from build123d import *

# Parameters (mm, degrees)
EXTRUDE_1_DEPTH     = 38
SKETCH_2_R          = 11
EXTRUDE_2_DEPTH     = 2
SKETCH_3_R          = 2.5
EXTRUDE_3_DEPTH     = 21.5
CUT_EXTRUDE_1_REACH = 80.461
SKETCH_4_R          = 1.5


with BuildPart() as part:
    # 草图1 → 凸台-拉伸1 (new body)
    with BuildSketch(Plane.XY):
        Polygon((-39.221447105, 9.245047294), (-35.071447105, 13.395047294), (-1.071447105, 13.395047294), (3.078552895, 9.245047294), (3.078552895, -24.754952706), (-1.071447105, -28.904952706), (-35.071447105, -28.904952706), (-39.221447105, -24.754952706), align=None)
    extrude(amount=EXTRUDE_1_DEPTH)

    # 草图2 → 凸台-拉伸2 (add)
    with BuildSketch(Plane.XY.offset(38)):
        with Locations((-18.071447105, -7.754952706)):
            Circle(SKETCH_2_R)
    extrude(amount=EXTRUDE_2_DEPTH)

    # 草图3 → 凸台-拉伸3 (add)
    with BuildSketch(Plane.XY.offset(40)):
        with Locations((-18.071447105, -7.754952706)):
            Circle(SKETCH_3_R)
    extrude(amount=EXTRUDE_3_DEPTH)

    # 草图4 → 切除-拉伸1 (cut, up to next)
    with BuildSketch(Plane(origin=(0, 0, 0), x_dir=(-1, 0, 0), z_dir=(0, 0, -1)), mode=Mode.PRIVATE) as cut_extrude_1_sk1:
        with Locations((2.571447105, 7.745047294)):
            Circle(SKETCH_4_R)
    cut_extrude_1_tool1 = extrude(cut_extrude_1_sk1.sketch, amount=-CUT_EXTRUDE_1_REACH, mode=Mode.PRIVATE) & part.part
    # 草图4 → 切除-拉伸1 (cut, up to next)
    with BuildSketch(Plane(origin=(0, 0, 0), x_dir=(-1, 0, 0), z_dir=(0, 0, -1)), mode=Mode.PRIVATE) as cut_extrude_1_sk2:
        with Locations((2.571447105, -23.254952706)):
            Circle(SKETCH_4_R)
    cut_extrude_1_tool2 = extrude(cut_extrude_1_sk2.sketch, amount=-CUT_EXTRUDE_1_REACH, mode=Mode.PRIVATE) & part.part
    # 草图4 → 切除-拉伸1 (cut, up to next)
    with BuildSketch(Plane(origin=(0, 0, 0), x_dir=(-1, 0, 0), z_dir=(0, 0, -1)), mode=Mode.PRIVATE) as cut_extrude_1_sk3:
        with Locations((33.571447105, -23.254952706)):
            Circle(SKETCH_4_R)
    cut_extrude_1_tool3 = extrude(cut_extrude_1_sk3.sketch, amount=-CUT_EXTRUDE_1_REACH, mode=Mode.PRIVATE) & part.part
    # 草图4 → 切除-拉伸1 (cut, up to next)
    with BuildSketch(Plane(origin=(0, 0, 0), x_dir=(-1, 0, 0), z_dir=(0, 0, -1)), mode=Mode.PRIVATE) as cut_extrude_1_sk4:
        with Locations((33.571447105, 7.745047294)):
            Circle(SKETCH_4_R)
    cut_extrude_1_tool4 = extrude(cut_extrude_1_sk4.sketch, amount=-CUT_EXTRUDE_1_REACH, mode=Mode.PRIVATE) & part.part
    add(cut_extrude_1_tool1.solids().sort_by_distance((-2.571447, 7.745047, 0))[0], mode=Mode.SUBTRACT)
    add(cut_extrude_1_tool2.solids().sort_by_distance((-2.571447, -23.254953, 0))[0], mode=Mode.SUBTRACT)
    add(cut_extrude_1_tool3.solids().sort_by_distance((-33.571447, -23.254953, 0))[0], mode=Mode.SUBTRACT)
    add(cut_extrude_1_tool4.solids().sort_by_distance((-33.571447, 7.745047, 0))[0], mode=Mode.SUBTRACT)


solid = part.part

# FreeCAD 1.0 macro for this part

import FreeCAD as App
import Part
import Sketcher
Q = App.Units.Quantity


def add_polygon(sketch, points):
    """Adds a closed chain of lines whose ends are joined by coincident constraints."""
    first, n = sketch.GeometryCount, len(points)
    for a, b in zip(points, points[1:] + points[:1]):
        sketch.addGeometry(Part.LineSegment(App.Vector(*a, 0), App.Vector(*b, 0)), False)
    for i in range(n):
        sketch.addConstraint(Sketcher.Constraint("Coincident", first + i, 2, first + (i + 1) % n, 1))

doc = App.newDocument("Part")
params = doc.addObject("Spreadsheet::Sheet", "Params")
for row, (alias, value) in enumerate([
    ("sketch1_width", "34 mm"),
    ("pad1_length", "38 mm"),
    ("sketch2_diameter", "22 mm"),
    ("pad2_length", "2 mm"),
    ("sketch3_diameter", "5 mm"),
    ("pad3_length", "21.5 mm"),
    ("sketch4_diameter", "3 mm"),
    ("sketch5_diameter", "3 mm"),
    ("sketch6_diameter", "3 mm"),
    ("sketch7_diameter", "3 mm"),
], start=1):
    params.set(f"A{row}", alias)
    params.set(f"B{row}", "=" + value)
    params.setAlias(f"B{row}", alias)

body = doc.addObject("PartDesign::Body", "Body")

# Sketch on XY plane
sketch1 = doc.addObject("Sketcher::SketchObject", "Sketch")
body.addObject(sketch1)
sketch1.AttachmentSupport = (doc.XY_Plane, [""])
sketch1.MapMode = "FlatFace"
add_polygon(sketch1, [(-35, 13), (-39, 9), (-39, -25), (-35, -29), (-1, -29), (3, -25), (3, 9), (-1, 13)])  # lines 0-7
sketch1.addConstraint(Sketcher.Constraint("Vertical", 1))
sketch1.addConstraint(Sketcher.Constraint("Horizontal", 3))
sketch1.addConstraint(Sketcher.Constraint("Vertical", 5))
sketch1.addConstraint(Sketcher.Constraint("Horizontal", 7))
sketch1.addConstraint(Sketcher.Constraint("Perpendicular", 0, 2))
sketch1.addConstraint(Sketcher.Constraint("Perpendicular", 2, 4))
sketch1.addConstraint(Sketcher.Constraint("Perpendicular", 4, 6))
sketch1.addConstraint(Sketcher.Constraint("Horizontal", 1, 2, 4, 2))
sketch1.addConstraint(Sketcher.Constraint("Horizontal", 0, 2, 5, 2))
sketch1.addConstraint(Sketcher.Constraint("Vertical", 3, 2, 6, 2))
sketch1.addConstraint(Sketcher.Constraint("Vertical", 2, 2, 7, 2))
sketch1.addConstraint(Sketcher.Constraint("Equal", 7, 1))
sketch1.addConstraint(Sketcher.Constraint("DistanceX", 3, 1, 3, 2, Q("34 mm")))
sketch1.addConstraint(Sketcher.Constraint("DistanceX", 1, 2, 4, 2, Q("42.3 mm")))
sketch1.addConstraint(Sketcher.Constraint("DistanceX", 0, 2, -1, 1, Q("39.221447 mm")))
sketch1.addConstraint(Sketcher.Constraint("DistanceY", -1, 1, 0, 2, Q("9.245047 mm")))
sketch1.setExpression("Constraints[20]", "Params.sketch1_width")
pad1 = doc.addObject("PartDesign::Pad", "Pad")
body.addObject(pad1)
pad1.Profile = sketch1
pad1.setExpression("Length", "Params.pad1_length")

# Sketch on XY plane
sketch2 = doc.addObject("Sketcher::SketchObject", "Sketch001")
body.addObject(sketch2)
sketch2.AttachmentSupport = (doc.XY_Plane, [""])
sketch2.MapMode = "FlatFace"
sketch2.AttachmentOffset = App.Placement(App.Vector(0, 0, 38), App.Rotation())
sketch2.addGeometry(Part.Circle(App.Vector(-18, -8, 0), App.Vector(0, 0, 1), 11), False)
sketch2.addConstraint(Sketcher.Constraint("Diameter", 0, Q("22 mm")))
sketch2.addConstraint(Sketcher.Constraint("DistanceX", 0, 3, -1, 1, Q("18.071447 mm")))
sketch2.addConstraint(Sketcher.Constraint("DistanceY", 0, 3, -1, 1, Q("7.754953 mm")))
sketch2.setExpression("Constraints[0]", "Params.sketch2_diameter")
pad2 = doc.addObject("PartDesign::Pad", "Pad001")
body.addObject(pad2)
pad2.Profile = sketch2
pad2.setExpression("Length", "Params.pad2_length")

# Sketch on XY plane
sketch3 = doc.addObject("Sketcher::SketchObject", "Sketch002")
body.addObject(sketch3)
sketch3.AttachmentSupport = (doc.XY_Plane, [""])
sketch3.MapMode = "FlatFace"
sketch3.AttachmentOffset = App.Placement(App.Vector(0, 0, 40), App.Rotation())
sketch3.addGeometry(Part.Circle(App.Vector(-18.1, -7.8, 0), App.Vector(0, 0, 1), 2.5), False)
sketch3.addConstraint(Sketcher.Constraint("Diameter", 0, Q("5 mm")))
sketch3.addConstraint(Sketcher.Constraint("DistanceX", 0, 3, -1, 1, Q("18.071447 mm")))
sketch3.addConstraint(Sketcher.Constraint("DistanceY", 0, 3, -1, 1, Q("7.754953 mm")))
sketch3.setExpression("Constraints[0]", "Params.sketch3_diameter")
pad3 = doc.addObject("PartDesign::Pad", "Pad002")
body.addObject(pad3)
pad3.Profile = sketch3
pad3.setExpression("Length", "Params.pad3_length")

# Sketch on XY plane
sketch4 = doc.addObject("Sketcher::SketchObject", "Sketch003")
body.addObject(sketch4)
sketch4.AttachmentSupport = (doc.XY_Plane, [""])
sketch4.MapMode = "FlatFace"
sketch4.addGeometry(Part.Circle(App.Vector(-2.6, 7.7, 0), App.Vector(0, 0, 1), 1.5), False)
sketch4.addConstraint(Sketcher.Constraint("Diameter", 0, Q("3 mm")))
sketch4.addConstraint(Sketcher.Constraint("DistanceX", 0, 3, -1, 1, Q("2.571447 mm")))
sketch4.addConstraint(Sketcher.Constraint("DistanceY", -1, 1, 0, 3, Q("7.745047 mm")))
sketch4.setExpression("Constraints[0]", "Params.sketch4_diameter")
pocket1 = doc.addObject("PartDesign::Pocket", "Pocket")
body.addObject(pocket1)
pocket1.Profile = sketch4
pocket1.Type = "UpToFirst"
pocket1.Reversed = True

# Sketch on XY plane
sketch5 = doc.addObject("Sketcher::SketchObject", "Sketch004")
body.addObject(sketch5)
sketch5.AttachmentSupport = (doc.XY_Plane, [""])
sketch5.MapMode = "FlatFace"
sketch5.addGeometry(Part.Circle(App.Vector(-2.6, -23.3, 0), App.Vector(0, 0, 1), 1.5), False)
sketch5.addConstraint(Sketcher.Constraint("Diameter", 0, Q("3 mm")))
sketch5.addConstraint(Sketcher.Constraint("DistanceX", 0, 3, -1, 1, Q("2.571447 mm")))
sketch5.addConstraint(Sketcher.Constraint("DistanceY", 0, 3, -1, 1, Q("23.254953 mm")))
sketch5.setExpression("Constraints[0]", "Params.sketch5_diameter")
pocket2 = doc.addObject("PartDesign::Pocket", "Pocket001")
body.addObject(pocket2)
pocket2.Profile = sketch5
pocket2.Type = "UpToFirst"
pocket2.Reversed = True

# Sketch on XY plane
sketch6 = doc.addObject("Sketcher::SketchObject", "Sketch005")
body.addObject(sketch6)
sketch6.AttachmentSupport = (doc.XY_Plane, [""])
sketch6.MapMode = "FlatFace"
sketch6.addGeometry(Part.Circle(App.Vector(-33.6, -23.3, 0), App.Vector(0, 0, 1), 1.5), False)
sketch6.addConstraint(Sketcher.Constraint("Diameter", 0, Q("3 mm")))
sketch6.addConstraint(Sketcher.Constraint("DistanceX", 0, 3, -1, 1, Q("33.571447 mm")))
sketch6.addConstraint(Sketcher.Constraint("DistanceY", 0, 3, -1, 1, Q("23.254953 mm")))
sketch6.setExpression("Constraints[0]", "Params.sketch6_diameter")
pocket3 = doc.addObject("PartDesign::Pocket", "Pocket002")
body.addObject(pocket3)
pocket3.Profile = sketch6
pocket3.Type = "UpToFirst"
pocket3.Reversed = True

# Sketch on XY plane
sketch7 = doc.addObject("Sketcher::SketchObject", "Sketch006")
body.addObject(sketch7)
sketch7.AttachmentSupport = (doc.XY_Plane, [""])
sketch7.MapMode = "FlatFace"
sketch7.addGeometry(Part.Circle(App.Vector(-33.6, 7.7, 0), App.Vector(0, 0, 1), 1.5), False)
sketch7.addConstraint(Sketcher.Constraint("Diameter", 0, Q("3 mm")))
sketch7.addConstraint(Sketcher.Constraint("DistanceX", 0, 3, -1, 1, Q("33.571447 mm")))
sketch7.addConstraint(Sketcher.Constraint("DistanceY", -1, 1, 0, 3, Q("7.745047 mm")))
sketch7.setExpression("Constraints[0]", "Params.sketch7_diameter")
pocket4 = doc.addObject("PartDesign::Pocket", "Pocket003")
body.addObject(pocket4)
pocket4.Profile = sketch7
pocket4.Type = "UpToFirst"
pocket4.Reversed = True

doc.recompute()
